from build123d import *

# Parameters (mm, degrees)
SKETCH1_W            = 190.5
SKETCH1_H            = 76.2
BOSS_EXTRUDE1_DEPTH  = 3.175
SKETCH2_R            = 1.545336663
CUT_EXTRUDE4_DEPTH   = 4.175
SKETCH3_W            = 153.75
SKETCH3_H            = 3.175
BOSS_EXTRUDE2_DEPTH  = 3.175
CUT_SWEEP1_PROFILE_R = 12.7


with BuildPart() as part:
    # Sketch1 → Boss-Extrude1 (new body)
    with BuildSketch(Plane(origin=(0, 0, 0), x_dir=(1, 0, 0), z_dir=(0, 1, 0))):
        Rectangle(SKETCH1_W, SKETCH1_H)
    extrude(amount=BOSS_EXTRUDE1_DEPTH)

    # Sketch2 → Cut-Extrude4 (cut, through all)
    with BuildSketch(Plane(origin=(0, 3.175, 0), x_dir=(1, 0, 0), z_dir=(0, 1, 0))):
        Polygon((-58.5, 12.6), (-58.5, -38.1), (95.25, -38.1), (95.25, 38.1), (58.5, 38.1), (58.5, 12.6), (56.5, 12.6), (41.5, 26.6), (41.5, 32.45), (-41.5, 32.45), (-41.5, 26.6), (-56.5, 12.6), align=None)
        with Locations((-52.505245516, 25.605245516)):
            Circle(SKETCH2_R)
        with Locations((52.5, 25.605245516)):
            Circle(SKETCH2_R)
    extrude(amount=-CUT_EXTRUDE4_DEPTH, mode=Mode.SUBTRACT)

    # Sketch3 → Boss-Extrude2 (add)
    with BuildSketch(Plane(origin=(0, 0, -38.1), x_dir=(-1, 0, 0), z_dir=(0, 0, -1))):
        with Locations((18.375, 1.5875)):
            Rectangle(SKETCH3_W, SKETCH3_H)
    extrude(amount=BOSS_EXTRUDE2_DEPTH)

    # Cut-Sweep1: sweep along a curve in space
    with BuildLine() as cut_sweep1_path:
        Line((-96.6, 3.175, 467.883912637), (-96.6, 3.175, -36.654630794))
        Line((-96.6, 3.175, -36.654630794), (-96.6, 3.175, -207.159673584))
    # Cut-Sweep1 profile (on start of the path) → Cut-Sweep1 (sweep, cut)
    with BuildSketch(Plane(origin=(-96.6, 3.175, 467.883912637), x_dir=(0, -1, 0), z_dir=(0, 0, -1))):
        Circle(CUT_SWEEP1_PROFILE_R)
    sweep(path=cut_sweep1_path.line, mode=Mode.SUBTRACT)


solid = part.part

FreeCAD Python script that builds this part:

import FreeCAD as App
import Part
import Sketcher
from FreeCAD import Vector
Q = App.Units.Quantity


def add_polygon(sketch, points):
    """Adds a closed chain of lines whose ends are joined by coincident constraints."""
    first, n = sketch.GeometryCount, len(points)
    for a, b in zip(points, points[1:] + points[:1]):
        sketch.addGeometry(Part.LineSegment(App.Vector(*a, 0), App.Vector(*b, 0)), False)
    for i in range(n):
        sketch.addConstraint(Sketcher.Constraint("Coincident", first + i, 2, first + (i + 1) % n, 1))

doc = App.newDocument("Part")
params = doc.addObject("Spreadsheet::Sheet", "Params")
for row, (alias, value) in enumerate([
    ("sketch1_width", "190.5 mm"),
    ("sketch1_height", "76.2 mm"),
    ("pad1_length", "3.175 mm"),
    ("sketch2_width", "2 mm"),
    ("sketch2_width2", "83 mm"),
    ("sketch2_height", "50.7 mm"),
    ("sketch2_height2", "76.2 mm"),
    ("sketch2_width3", "153.75 mm"),
    ("sketch3_width", "153.75 mm"),
    ("pad2_length", "3.175 mm"),
    ("sketch4_diameter", "25.4 mm"),
], start=1):
    params.set(f"A{row}", alias)
    params.set(f"B{row}", "=" + value)
    params.setAlias(f"B{row}", alias)

body = doc.addObject("PartDesign::Body", "Body")

sketch1 = doc.addObject("Sketcher::SketchObject", "Sketch")
body.addObject(sketch1)
sketch1.AttachmentSupport = (doc.XZ_Plane, [""])
sketch1.MapMode = "FlatFace"
add_polygon(sketch1, [(-95, -38), (-95, 38), (95, 38), (95, -38)])
sketch1.addConstraint([
    Sketcher.Constraint("Vertical", 0),
    Sketcher.Constraint("Horizontal", 1),
    Sketcher.Constraint("Vertical", 2),
    Sketcher.Constraint("Horizontal", 3),
    Sketcher.Constraint("Symmetric", 0, 2, 2, 2, -1, 1),
    Sketcher.Constraint("DistanceX", 1, 1, 1, 2, Q("190.5 mm")),
    Sketcher.Constraint("DistanceY", 0, 1, 0, 2, Q("76.2 mm")),
])
sketch1.setExpression("Constraints[9]", "Params.sketch1_width")
sketch1.setExpression("Constraints[10]", "Params.sketch1_height")
pad1 = doc.addObject("PartDesign::Pad", "Pad")
body.addObject(pad1)
pad1.Profile = sketch1
pad1.setExpression("Length", "Params.pad1_length")
pad1.Reversed = True

sketch2 = doc.addObject("Sketcher::SketchObject", "Sketch001")
body.addObject(sketch2)
sketch2.AttachmentSupport = (doc.XZ_Plane, [""])
sketch2.MapMode = "FlatFace"
sketch2.AttachmentOffset = App.Placement(Vector(0, 0, -3.175), App.Rotation())
add_polygon(sketch2, [(-58.5, -12.6), (-58.5, 38.1), (95.2, 38.1), (95.2, -38.1), (58.5, -38.1), (58.5, -12.6), (56.5, -12.6), (41.5, -26.6), (41.5, -32.5), (-41.5, -32.5), (-41.5, -26.6), (-56.5, -12.6)])
sketch2.addGeometry(Part.Circle(Vector(-52.5, -25.6, 0), Vector(0, 0, 1), 1.5), False)
sketch2.addGeometry(Part.Circle(Vector(52.5, -25.6, 0), Vector(0, 0, 1), 1.5), False)
sketch2.addConstraint([
    Sketcher.Constraint("Vertical", 0),
    Sketcher.Constraint("Horizontal", 1),
    Sketcher.Constraint("Vertical", 2),
    Sketcher.Constraint("Horizontal", 3),
    Sketcher.Constraint("Vertical", 4),
    Sketcher.Constraint("Horizontal", 5),
    Sketcher.Constraint("Vertical", 7),
    Sketcher.Constraint("Horizontal", 8),
    Sketcher.Constraint("Vertical", 9),
    Sketcher.Constraint("Horizontal", 11),
    Sketcher.Constraint("Equal", 12, 13),
    Sketcher.Constraint("Symmetric", 0, 2, 3, 2, -1, 1),
    Sketcher.Constraint("Symmetric", 6, 2, 9, 2, -2),
    Sketcher.Constraint("Symmetric", 5, 2, 10, 2, -2),
    Sketcher.Constraint("Horizontal", 12, 3, 13, 3),
    Sketcher.Constraint("DistanceX", 5, 2, 5, 1, Q("2 mm")),
    Sketcher.Constraint("DistanceX", 8, 2, 8, 1, Q("83 mm")),
    Sketcher.Constraint("DistanceY", 0, 1, 0, 2, Q("50.7 mm")),
    Sketcher.Constraint("DistanceY", 2, 2, 2, 1, Q("76.2 mm")),
    Sketcher.Constraint("DistanceX", 0, 2, 13, 3, Q("111 mm")),
    Sketcher.Constraint("DistanceX", 13, 3, 3, 2, Q("6 mm")),
    Sketcher.Constraint("DistanceY", 6, 2, 5, 2, Q("14 mm")),
    Sketcher.Constraint("DistanceX", 1, 1, 1, 2, Q("153.75 mm")),
    Sketcher.Constraint("DistanceY", 7, 2, 7, 1, Q("5.85 mm")),
    Sketcher.Constraint("Diameter", 12, Q("3.090673 mm")),
    Sketcher.Constraint("DistanceX", 12, 3, -1, 1, Q("52.505246 mm")),
    Sketcher.Constraint("DistanceY", 12, 3, -1, 1, Q("25.605246 mm")),
])
sketch2.setExpression("Constraints[27]", "Params.sketch2_width")
sketch2.setExpression("Constraints[28]", "Params.sketch2_width2")
sketch2.setExpression("Constraints[29]", "Params.sketch2_height")
sketch2.setExpression("Constraints[30]", "Params.sketch2_height2")
sketch2.setExpression("Constraints[34]", "Params.sketch2_width3")
pocket1 = doc.addObject("PartDesign::Pocket", "Pocket")
body.addObject(pocket1)
pocket1.Profile = sketch2
pocket1.Type = "ThroughAll"
pocket1.Reversed = True

sketch3 = doc.addObject("Sketcher::SketchObject", "Sketch002")
body.addObject(sketch3)
sketch3.AttachmentSupport = (doc.XY_Plane, [""])
sketch3.MapMode = "FlatFace"
sketch3.AttachmentOffset = App.Placement(Vector(0, 0, -38.1), App.Rotation())
add_polygon(sketch3, [(58.5, 3.2), (58.5, 0), (-95.2, 0), (-95.2, 3.2)])
sketch3.addConstraint([
    Sketcher.Constraint("Vertical", 0),
    Sketcher.Constraint("Horizontal", 1),
    Sketcher.Constraint("Vertical", 2),
    Sketcher.Constraint("Horizontal", 3),
    Sketcher.Constraint("PointOnObject", 0, 2, -1),
    Sketcher.Constraint("DistanceX", 1, 2, 1, 1, Q("153.75 mm")),
    Sketcher.Constraint("DistanceX", -1, 1, 0, 2, Q("58.5 mm")),
    Sketcher.Constraint("DistanceY", 0, 2, 0, 1, Q("3.175 mm")),
])
sketch3.setExpression("Constraints[9]", "Params.sketch3_width")
pad2 = doc.addObject("PartDesign::Pad", "Pad001")
body.addObject(pad2)
pad2.Profile = sketch3
pad2.setExpression("Length", "Params.pad2_length")
pad2.Reversed = True

sketch4 = doc.addObject("Sketcher::SketchObject", "Sketch003")
body.addObject(sketch4)
sketch4.AttachmentSupport = (doc.XY_Plane, [""])
sketch4.MapMode = "FlatFace"
sketch4.AttachmentOffset = App.Placement(Vector(0, 0, 467.883913), App.Rotation())
sketch4.addGeometry(Part.Circle(Vector(-97, 3, 0), Vector(0, 0, 1), 13), False)
sketch4.addConstraint([
    Sketcher.Constraint("Diameter", 0, Q("25.4 mm")),
    Sketcher.Constraint("DistanceX", 0, 3, -1, 1, Q("96.6 mm")),
    Sketcher.Constraint("DistanceY", -1, 1, 0, 3, Q("3.175 mm")),
])
sketch4.setExpression("Constraints[0]", "Params.sketch4_diameter")

sketch5 = doc.addObject("Sketcher::SketchObject", "Sketch004")
body.addObject(sketch5)
sketch5.AttachmentSupport = (doc.XZ_Plane, [""])
sketch5.MapMode = "FlatFace"
sketch5.AttachmentOffset = App.Placement(Vector(0, 0, -3.175), App.Rotation())
sketch5.addGeometry(Part.LineSegment(Vector(-97, 468, 0), Vector(-97, -207, 0)), False)
sketch5.addConstraint([
    Sketcher.Constraint("Vertical", 0),
    Sketcher.Constraint("DistanceX", 0, 1, -1, 1, Q("96.6 mm")),
    Sketcher.Constraint("DistanceY", 0, 2, 0, 1, Q("675.043586 mm")),
    Sketcher.Constraint("DistanceY", -1, 1, 0, 1, Q("467.883913 mm")),
])
doc.recompute()

subtractivepipe = doc.addObject("PartDesign::SubtractivePipe", "SubtractivePipe")
body.addObject(subtractivepipe)
subtractivepipe.Profile = sketch4
subtractivepipe.Spine = (sketch5, ["Edge1"])

doc.recompute()
